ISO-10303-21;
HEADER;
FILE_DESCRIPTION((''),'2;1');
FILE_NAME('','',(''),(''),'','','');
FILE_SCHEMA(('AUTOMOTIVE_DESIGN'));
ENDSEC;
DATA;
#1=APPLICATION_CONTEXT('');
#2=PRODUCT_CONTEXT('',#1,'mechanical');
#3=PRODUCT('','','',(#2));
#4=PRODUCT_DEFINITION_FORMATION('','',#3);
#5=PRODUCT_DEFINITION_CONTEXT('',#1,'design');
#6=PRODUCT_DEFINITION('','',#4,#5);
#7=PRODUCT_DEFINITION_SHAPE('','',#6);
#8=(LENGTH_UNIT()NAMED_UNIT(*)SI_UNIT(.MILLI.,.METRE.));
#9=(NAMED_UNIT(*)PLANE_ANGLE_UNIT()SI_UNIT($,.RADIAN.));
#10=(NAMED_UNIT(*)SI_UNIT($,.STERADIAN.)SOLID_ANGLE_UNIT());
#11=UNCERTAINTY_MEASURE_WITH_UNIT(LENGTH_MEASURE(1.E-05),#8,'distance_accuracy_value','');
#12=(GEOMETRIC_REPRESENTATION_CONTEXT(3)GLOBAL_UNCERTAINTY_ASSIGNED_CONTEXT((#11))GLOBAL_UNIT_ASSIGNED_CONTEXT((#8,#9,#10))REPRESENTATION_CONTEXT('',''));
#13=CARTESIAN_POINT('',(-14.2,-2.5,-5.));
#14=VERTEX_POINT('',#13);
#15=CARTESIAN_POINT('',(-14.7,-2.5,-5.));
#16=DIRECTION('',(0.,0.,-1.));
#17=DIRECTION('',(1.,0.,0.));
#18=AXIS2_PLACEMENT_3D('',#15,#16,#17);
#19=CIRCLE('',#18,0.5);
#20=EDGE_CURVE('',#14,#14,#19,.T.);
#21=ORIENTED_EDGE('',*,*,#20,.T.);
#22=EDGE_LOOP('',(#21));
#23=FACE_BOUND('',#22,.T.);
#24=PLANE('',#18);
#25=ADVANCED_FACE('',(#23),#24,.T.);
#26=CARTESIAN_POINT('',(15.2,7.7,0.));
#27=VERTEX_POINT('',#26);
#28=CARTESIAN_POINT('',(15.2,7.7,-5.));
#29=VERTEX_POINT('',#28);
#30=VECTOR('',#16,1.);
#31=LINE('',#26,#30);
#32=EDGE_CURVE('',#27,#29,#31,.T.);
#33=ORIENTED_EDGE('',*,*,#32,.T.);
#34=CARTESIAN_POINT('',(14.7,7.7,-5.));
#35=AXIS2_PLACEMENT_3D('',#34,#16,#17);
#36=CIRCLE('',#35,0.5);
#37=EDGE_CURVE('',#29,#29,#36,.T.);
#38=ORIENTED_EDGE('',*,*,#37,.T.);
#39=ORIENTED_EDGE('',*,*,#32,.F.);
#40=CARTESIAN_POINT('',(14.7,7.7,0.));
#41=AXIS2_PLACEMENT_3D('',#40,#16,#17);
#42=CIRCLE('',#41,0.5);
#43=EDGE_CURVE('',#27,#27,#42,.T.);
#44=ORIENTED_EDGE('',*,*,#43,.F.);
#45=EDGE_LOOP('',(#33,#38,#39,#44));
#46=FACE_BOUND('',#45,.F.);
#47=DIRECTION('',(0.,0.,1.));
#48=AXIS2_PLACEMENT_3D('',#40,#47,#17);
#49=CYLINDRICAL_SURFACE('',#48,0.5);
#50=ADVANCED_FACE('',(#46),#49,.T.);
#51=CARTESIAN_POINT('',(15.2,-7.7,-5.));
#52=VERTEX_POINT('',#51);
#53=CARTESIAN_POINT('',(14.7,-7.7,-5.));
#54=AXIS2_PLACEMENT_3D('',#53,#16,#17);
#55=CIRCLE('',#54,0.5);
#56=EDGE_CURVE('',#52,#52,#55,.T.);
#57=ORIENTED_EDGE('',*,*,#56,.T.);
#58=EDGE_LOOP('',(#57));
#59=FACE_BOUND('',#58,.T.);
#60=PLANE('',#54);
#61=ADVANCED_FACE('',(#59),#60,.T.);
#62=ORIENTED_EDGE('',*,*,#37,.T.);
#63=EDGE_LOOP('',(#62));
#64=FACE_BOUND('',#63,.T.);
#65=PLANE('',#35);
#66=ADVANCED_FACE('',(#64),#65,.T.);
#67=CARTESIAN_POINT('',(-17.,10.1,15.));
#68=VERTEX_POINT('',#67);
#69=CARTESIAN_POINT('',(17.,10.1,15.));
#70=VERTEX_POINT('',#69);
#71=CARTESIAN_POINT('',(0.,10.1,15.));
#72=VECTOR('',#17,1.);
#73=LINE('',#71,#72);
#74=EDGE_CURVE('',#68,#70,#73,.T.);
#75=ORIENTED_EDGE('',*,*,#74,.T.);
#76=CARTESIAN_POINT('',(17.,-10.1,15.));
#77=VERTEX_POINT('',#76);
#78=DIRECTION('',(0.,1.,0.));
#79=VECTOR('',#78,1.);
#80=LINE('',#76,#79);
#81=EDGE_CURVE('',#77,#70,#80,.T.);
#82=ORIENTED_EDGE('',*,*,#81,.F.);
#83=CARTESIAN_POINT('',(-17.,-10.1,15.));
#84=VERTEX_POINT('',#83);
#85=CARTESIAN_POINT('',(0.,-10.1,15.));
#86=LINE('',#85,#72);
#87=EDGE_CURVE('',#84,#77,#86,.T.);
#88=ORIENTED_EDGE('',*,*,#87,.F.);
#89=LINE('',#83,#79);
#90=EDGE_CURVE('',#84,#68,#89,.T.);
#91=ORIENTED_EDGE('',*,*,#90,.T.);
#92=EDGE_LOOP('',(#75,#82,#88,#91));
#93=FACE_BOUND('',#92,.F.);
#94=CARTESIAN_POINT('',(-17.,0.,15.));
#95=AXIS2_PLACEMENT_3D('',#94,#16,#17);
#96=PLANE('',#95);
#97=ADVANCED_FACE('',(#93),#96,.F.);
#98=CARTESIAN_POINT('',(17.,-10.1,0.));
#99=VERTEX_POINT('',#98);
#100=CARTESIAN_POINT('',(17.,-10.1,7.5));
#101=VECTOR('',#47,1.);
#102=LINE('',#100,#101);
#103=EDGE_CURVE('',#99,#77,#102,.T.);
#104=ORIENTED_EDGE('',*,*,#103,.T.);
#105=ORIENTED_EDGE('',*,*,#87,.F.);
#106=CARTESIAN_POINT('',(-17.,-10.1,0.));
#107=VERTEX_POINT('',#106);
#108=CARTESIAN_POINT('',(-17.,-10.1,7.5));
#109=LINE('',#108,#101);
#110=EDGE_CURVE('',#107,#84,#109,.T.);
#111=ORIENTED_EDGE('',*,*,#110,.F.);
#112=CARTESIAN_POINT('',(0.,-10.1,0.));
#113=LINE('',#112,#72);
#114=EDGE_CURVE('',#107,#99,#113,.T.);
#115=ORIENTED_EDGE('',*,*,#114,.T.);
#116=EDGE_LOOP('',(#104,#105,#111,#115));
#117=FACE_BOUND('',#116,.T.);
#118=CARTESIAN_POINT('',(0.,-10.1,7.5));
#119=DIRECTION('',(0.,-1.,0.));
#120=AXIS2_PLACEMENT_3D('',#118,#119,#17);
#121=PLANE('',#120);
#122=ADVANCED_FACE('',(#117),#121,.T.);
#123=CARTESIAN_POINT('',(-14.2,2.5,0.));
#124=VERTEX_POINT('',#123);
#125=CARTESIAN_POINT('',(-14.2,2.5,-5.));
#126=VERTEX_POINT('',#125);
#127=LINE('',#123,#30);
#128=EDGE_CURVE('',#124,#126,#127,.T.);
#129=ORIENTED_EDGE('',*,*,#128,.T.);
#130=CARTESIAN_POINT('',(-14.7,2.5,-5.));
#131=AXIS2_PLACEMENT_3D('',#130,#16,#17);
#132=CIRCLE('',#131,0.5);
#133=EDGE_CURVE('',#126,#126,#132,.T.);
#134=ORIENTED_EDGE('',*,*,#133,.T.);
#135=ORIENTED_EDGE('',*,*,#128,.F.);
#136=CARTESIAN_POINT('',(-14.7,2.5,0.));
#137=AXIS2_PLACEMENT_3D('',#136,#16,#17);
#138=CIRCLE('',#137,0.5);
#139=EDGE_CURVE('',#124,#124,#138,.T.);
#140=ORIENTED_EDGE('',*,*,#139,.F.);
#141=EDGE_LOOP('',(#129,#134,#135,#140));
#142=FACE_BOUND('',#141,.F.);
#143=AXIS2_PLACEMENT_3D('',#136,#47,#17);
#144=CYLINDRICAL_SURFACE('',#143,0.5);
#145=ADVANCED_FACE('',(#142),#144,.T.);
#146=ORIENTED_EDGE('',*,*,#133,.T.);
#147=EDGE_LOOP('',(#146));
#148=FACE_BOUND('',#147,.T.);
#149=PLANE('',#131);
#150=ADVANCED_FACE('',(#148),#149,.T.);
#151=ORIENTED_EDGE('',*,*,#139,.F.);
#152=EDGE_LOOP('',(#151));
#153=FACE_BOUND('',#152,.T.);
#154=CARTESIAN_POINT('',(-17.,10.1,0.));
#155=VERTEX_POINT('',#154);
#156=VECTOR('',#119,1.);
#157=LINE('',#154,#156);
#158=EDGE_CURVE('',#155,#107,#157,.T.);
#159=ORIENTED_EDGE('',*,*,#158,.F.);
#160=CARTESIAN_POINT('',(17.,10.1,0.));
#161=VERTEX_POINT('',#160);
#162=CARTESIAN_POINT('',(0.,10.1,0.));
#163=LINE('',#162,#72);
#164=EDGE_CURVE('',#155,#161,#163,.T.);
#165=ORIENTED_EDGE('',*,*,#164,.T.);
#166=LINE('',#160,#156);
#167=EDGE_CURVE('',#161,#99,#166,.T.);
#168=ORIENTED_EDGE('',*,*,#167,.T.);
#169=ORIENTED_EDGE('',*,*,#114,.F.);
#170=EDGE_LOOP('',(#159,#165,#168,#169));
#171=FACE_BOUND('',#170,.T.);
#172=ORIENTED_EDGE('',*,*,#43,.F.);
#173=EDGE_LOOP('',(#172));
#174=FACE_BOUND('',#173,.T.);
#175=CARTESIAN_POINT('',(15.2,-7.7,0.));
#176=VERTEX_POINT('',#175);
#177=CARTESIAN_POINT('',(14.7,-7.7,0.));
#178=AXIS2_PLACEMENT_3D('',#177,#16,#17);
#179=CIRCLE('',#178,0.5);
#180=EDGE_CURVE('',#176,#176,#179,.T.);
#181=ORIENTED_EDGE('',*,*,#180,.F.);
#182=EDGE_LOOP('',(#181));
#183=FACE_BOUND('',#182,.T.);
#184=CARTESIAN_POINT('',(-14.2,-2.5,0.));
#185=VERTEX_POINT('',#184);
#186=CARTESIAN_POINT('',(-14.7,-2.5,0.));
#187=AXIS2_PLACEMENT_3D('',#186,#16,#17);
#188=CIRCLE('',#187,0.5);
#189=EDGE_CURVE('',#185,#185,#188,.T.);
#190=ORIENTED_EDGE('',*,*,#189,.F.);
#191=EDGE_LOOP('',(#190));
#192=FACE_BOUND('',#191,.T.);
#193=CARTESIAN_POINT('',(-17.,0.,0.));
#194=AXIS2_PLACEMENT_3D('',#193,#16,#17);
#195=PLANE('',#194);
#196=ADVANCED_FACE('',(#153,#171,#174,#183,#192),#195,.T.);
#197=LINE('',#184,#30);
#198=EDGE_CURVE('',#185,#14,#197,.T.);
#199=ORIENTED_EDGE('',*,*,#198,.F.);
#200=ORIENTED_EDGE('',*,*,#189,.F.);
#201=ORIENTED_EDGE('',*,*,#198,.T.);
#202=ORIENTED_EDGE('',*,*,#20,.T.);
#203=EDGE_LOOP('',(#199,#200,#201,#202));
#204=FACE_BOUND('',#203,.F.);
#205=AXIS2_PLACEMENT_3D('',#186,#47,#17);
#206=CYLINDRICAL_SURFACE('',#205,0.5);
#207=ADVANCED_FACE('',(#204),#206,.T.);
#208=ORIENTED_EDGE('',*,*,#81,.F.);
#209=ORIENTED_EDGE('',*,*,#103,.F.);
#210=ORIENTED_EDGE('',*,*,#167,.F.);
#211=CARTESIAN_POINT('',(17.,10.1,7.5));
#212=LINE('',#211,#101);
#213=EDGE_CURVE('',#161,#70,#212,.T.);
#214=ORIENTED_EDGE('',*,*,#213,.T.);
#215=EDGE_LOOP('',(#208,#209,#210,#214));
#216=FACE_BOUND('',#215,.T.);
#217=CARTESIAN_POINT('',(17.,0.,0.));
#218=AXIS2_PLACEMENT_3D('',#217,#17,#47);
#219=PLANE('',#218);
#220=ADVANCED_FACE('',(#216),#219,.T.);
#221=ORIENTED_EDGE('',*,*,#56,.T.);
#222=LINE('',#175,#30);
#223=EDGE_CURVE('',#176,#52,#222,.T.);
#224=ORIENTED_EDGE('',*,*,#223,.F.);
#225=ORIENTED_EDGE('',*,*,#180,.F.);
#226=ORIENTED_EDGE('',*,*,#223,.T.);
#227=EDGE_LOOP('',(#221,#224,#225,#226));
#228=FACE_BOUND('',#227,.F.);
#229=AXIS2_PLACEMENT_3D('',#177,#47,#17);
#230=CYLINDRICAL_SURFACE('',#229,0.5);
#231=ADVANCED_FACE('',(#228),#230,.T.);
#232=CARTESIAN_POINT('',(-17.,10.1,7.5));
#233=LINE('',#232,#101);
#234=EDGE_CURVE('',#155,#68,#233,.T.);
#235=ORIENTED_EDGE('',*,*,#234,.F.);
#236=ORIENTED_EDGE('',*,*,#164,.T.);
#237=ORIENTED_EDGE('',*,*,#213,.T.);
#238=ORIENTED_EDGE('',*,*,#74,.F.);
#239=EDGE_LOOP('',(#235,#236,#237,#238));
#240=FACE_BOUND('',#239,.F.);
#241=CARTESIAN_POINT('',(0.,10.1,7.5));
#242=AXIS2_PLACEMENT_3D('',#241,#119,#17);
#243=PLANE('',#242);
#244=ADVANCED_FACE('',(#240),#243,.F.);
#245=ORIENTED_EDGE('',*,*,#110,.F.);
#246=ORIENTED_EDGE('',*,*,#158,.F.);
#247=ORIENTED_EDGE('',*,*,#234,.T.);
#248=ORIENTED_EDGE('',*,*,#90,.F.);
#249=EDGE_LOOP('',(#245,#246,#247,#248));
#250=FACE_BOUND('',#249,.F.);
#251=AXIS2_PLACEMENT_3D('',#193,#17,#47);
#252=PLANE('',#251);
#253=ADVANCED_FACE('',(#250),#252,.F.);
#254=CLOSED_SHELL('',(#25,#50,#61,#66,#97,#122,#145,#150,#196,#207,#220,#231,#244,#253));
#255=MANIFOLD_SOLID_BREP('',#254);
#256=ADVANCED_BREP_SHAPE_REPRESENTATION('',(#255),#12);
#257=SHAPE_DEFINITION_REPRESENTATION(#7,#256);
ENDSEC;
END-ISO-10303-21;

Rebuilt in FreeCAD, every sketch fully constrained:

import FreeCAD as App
import Part
import Sketcher
Q = App.Units.Quantity


def add_polygon(sketch, points):
    """Adds a closed chain of lines whose ends are joined by coincident constraints."""
    first, n = sketch.GeometryCount, len(points)
    for a, b in zip(points, points[1:] + points[:1]):
        sketch.addGeometry(Part.LineSegment(App.Vector(*a, 0), App.Vector(*b, 0)), False)
    for i in range(n):
        sketch.addConstraint(Sketcher.Constraint("Coincident", first + i, 2, first + (i + 1) % n, 1))

doc = App.newDocument("Part")
body = doc.addObject("PartDesign::Body", "Body")

sketch1 = body.newObject("Sketcher::SketchObject", "Sketch")
sketch1.AttachmentSupport = (doc.getObject("XZ_Plane"), [""])
sketch1.MapMode = "FlatFace"
add_polygon(sketch1, [(-17, 15), (-17, 0), (17, 0), (17, 15)])
sketch1.addConstraint(Sketcher.Constraint("Vertical", 0))
sketch1.addConstraint(Sketcher.Constraint("Horizontal", 1))
sketch1.addConstraint(Sketcher.Constraint("Vertical", 2))
sketch1.addConstraint(Sketcher.Constraint("Horizontal", 3))
sketch1.addConstraint(Sketcher.Constraint("Symmetric", 0, 2, 1, 2, -1, 1))
sketch1.addConstraint(Sketcher.Constraint("DistanceX", 1, 1, 1, 2, Q("34 mm")))
sketch1.addConstraint(Sketcher.Constraint("DistanceY", 0, 2, 0, 1, Q("15 mm")))
pad1 = body.newObject("PartDesign::Pad", "Pad")
pad1.Profile = sketch1
pad1.Length = 20.2
pad1.Midplane = True

sketch2 = body.newObject("Sketcher::SketchObject", "Sketch001")
sketch2.AttachmentSupport = (doc.getObject("XY_Plane"), [""])
sketch2.MapMode = "FlatFace"
sketch2.addGeometry(Part.Circle(App.Vector(-14.7, -2.5, 0), App.Vector(0, 0, 1), 0.5), False)
sketch2.addGeometry(Part.Circle(App.Vector(-14.7, 2.5, 0), App.Vector(0, 0, 1), 0.5), False)
sketch2.addGeometry(Part.Circle(App.Vector(14.7, -7.7, 0), App.Vector(0, 0, 1), 0.5), False)
sketch2.addGeometry(Part.Circle(App.Vector(14.7, 7.7, 0), App.Vector(0, 0, 1), 0.5), False)
sketch2.addConstraint(Sketcher.Constraint("Equal", 0, 1))
sketch2.addConstraint(Sketcher.Constraint("Equal", 1, 2))
sketch2.addConstraint(Sketcher.Constraint("Equal", 2, 3))
sketch2.addConstraint(Sketcher.Constraint("Symmetric", 0, 3, 1, 3, -1))
sketch2.addConstraint(Sketcher.Constraint("Symmetric", 2, 3, 3, 3, -1))
sketch2.addConstraint(Sketcher.Constraint("Diameter", 0, Q("1 mm")))
sketch2.addConstraint(Sketcher.Constraint("DistanceY", 0, 3, 1, 3, Q("5 mm")))
sketch2.addConstraint(Sketcher.Constraint("DistanceX", 0, 3, -1, 1, Q("14.7 mm")))
sketch2.addConstraint(Sketcher.Constraint("DistanceX", -1, 1, 2, 3, Q("14.7 mm")))
sketch2.addConstraint(Sketcher.Constraint("DistanceY", 2, 3, -1, 1, Q("7.7 mm")))
pad2 = body.newObject("PartDesign::Pad", "Pad001")
pad2.Profile = sketch2
pad2.Length = 5
pad2.Reversed = True

doc.recompute()
